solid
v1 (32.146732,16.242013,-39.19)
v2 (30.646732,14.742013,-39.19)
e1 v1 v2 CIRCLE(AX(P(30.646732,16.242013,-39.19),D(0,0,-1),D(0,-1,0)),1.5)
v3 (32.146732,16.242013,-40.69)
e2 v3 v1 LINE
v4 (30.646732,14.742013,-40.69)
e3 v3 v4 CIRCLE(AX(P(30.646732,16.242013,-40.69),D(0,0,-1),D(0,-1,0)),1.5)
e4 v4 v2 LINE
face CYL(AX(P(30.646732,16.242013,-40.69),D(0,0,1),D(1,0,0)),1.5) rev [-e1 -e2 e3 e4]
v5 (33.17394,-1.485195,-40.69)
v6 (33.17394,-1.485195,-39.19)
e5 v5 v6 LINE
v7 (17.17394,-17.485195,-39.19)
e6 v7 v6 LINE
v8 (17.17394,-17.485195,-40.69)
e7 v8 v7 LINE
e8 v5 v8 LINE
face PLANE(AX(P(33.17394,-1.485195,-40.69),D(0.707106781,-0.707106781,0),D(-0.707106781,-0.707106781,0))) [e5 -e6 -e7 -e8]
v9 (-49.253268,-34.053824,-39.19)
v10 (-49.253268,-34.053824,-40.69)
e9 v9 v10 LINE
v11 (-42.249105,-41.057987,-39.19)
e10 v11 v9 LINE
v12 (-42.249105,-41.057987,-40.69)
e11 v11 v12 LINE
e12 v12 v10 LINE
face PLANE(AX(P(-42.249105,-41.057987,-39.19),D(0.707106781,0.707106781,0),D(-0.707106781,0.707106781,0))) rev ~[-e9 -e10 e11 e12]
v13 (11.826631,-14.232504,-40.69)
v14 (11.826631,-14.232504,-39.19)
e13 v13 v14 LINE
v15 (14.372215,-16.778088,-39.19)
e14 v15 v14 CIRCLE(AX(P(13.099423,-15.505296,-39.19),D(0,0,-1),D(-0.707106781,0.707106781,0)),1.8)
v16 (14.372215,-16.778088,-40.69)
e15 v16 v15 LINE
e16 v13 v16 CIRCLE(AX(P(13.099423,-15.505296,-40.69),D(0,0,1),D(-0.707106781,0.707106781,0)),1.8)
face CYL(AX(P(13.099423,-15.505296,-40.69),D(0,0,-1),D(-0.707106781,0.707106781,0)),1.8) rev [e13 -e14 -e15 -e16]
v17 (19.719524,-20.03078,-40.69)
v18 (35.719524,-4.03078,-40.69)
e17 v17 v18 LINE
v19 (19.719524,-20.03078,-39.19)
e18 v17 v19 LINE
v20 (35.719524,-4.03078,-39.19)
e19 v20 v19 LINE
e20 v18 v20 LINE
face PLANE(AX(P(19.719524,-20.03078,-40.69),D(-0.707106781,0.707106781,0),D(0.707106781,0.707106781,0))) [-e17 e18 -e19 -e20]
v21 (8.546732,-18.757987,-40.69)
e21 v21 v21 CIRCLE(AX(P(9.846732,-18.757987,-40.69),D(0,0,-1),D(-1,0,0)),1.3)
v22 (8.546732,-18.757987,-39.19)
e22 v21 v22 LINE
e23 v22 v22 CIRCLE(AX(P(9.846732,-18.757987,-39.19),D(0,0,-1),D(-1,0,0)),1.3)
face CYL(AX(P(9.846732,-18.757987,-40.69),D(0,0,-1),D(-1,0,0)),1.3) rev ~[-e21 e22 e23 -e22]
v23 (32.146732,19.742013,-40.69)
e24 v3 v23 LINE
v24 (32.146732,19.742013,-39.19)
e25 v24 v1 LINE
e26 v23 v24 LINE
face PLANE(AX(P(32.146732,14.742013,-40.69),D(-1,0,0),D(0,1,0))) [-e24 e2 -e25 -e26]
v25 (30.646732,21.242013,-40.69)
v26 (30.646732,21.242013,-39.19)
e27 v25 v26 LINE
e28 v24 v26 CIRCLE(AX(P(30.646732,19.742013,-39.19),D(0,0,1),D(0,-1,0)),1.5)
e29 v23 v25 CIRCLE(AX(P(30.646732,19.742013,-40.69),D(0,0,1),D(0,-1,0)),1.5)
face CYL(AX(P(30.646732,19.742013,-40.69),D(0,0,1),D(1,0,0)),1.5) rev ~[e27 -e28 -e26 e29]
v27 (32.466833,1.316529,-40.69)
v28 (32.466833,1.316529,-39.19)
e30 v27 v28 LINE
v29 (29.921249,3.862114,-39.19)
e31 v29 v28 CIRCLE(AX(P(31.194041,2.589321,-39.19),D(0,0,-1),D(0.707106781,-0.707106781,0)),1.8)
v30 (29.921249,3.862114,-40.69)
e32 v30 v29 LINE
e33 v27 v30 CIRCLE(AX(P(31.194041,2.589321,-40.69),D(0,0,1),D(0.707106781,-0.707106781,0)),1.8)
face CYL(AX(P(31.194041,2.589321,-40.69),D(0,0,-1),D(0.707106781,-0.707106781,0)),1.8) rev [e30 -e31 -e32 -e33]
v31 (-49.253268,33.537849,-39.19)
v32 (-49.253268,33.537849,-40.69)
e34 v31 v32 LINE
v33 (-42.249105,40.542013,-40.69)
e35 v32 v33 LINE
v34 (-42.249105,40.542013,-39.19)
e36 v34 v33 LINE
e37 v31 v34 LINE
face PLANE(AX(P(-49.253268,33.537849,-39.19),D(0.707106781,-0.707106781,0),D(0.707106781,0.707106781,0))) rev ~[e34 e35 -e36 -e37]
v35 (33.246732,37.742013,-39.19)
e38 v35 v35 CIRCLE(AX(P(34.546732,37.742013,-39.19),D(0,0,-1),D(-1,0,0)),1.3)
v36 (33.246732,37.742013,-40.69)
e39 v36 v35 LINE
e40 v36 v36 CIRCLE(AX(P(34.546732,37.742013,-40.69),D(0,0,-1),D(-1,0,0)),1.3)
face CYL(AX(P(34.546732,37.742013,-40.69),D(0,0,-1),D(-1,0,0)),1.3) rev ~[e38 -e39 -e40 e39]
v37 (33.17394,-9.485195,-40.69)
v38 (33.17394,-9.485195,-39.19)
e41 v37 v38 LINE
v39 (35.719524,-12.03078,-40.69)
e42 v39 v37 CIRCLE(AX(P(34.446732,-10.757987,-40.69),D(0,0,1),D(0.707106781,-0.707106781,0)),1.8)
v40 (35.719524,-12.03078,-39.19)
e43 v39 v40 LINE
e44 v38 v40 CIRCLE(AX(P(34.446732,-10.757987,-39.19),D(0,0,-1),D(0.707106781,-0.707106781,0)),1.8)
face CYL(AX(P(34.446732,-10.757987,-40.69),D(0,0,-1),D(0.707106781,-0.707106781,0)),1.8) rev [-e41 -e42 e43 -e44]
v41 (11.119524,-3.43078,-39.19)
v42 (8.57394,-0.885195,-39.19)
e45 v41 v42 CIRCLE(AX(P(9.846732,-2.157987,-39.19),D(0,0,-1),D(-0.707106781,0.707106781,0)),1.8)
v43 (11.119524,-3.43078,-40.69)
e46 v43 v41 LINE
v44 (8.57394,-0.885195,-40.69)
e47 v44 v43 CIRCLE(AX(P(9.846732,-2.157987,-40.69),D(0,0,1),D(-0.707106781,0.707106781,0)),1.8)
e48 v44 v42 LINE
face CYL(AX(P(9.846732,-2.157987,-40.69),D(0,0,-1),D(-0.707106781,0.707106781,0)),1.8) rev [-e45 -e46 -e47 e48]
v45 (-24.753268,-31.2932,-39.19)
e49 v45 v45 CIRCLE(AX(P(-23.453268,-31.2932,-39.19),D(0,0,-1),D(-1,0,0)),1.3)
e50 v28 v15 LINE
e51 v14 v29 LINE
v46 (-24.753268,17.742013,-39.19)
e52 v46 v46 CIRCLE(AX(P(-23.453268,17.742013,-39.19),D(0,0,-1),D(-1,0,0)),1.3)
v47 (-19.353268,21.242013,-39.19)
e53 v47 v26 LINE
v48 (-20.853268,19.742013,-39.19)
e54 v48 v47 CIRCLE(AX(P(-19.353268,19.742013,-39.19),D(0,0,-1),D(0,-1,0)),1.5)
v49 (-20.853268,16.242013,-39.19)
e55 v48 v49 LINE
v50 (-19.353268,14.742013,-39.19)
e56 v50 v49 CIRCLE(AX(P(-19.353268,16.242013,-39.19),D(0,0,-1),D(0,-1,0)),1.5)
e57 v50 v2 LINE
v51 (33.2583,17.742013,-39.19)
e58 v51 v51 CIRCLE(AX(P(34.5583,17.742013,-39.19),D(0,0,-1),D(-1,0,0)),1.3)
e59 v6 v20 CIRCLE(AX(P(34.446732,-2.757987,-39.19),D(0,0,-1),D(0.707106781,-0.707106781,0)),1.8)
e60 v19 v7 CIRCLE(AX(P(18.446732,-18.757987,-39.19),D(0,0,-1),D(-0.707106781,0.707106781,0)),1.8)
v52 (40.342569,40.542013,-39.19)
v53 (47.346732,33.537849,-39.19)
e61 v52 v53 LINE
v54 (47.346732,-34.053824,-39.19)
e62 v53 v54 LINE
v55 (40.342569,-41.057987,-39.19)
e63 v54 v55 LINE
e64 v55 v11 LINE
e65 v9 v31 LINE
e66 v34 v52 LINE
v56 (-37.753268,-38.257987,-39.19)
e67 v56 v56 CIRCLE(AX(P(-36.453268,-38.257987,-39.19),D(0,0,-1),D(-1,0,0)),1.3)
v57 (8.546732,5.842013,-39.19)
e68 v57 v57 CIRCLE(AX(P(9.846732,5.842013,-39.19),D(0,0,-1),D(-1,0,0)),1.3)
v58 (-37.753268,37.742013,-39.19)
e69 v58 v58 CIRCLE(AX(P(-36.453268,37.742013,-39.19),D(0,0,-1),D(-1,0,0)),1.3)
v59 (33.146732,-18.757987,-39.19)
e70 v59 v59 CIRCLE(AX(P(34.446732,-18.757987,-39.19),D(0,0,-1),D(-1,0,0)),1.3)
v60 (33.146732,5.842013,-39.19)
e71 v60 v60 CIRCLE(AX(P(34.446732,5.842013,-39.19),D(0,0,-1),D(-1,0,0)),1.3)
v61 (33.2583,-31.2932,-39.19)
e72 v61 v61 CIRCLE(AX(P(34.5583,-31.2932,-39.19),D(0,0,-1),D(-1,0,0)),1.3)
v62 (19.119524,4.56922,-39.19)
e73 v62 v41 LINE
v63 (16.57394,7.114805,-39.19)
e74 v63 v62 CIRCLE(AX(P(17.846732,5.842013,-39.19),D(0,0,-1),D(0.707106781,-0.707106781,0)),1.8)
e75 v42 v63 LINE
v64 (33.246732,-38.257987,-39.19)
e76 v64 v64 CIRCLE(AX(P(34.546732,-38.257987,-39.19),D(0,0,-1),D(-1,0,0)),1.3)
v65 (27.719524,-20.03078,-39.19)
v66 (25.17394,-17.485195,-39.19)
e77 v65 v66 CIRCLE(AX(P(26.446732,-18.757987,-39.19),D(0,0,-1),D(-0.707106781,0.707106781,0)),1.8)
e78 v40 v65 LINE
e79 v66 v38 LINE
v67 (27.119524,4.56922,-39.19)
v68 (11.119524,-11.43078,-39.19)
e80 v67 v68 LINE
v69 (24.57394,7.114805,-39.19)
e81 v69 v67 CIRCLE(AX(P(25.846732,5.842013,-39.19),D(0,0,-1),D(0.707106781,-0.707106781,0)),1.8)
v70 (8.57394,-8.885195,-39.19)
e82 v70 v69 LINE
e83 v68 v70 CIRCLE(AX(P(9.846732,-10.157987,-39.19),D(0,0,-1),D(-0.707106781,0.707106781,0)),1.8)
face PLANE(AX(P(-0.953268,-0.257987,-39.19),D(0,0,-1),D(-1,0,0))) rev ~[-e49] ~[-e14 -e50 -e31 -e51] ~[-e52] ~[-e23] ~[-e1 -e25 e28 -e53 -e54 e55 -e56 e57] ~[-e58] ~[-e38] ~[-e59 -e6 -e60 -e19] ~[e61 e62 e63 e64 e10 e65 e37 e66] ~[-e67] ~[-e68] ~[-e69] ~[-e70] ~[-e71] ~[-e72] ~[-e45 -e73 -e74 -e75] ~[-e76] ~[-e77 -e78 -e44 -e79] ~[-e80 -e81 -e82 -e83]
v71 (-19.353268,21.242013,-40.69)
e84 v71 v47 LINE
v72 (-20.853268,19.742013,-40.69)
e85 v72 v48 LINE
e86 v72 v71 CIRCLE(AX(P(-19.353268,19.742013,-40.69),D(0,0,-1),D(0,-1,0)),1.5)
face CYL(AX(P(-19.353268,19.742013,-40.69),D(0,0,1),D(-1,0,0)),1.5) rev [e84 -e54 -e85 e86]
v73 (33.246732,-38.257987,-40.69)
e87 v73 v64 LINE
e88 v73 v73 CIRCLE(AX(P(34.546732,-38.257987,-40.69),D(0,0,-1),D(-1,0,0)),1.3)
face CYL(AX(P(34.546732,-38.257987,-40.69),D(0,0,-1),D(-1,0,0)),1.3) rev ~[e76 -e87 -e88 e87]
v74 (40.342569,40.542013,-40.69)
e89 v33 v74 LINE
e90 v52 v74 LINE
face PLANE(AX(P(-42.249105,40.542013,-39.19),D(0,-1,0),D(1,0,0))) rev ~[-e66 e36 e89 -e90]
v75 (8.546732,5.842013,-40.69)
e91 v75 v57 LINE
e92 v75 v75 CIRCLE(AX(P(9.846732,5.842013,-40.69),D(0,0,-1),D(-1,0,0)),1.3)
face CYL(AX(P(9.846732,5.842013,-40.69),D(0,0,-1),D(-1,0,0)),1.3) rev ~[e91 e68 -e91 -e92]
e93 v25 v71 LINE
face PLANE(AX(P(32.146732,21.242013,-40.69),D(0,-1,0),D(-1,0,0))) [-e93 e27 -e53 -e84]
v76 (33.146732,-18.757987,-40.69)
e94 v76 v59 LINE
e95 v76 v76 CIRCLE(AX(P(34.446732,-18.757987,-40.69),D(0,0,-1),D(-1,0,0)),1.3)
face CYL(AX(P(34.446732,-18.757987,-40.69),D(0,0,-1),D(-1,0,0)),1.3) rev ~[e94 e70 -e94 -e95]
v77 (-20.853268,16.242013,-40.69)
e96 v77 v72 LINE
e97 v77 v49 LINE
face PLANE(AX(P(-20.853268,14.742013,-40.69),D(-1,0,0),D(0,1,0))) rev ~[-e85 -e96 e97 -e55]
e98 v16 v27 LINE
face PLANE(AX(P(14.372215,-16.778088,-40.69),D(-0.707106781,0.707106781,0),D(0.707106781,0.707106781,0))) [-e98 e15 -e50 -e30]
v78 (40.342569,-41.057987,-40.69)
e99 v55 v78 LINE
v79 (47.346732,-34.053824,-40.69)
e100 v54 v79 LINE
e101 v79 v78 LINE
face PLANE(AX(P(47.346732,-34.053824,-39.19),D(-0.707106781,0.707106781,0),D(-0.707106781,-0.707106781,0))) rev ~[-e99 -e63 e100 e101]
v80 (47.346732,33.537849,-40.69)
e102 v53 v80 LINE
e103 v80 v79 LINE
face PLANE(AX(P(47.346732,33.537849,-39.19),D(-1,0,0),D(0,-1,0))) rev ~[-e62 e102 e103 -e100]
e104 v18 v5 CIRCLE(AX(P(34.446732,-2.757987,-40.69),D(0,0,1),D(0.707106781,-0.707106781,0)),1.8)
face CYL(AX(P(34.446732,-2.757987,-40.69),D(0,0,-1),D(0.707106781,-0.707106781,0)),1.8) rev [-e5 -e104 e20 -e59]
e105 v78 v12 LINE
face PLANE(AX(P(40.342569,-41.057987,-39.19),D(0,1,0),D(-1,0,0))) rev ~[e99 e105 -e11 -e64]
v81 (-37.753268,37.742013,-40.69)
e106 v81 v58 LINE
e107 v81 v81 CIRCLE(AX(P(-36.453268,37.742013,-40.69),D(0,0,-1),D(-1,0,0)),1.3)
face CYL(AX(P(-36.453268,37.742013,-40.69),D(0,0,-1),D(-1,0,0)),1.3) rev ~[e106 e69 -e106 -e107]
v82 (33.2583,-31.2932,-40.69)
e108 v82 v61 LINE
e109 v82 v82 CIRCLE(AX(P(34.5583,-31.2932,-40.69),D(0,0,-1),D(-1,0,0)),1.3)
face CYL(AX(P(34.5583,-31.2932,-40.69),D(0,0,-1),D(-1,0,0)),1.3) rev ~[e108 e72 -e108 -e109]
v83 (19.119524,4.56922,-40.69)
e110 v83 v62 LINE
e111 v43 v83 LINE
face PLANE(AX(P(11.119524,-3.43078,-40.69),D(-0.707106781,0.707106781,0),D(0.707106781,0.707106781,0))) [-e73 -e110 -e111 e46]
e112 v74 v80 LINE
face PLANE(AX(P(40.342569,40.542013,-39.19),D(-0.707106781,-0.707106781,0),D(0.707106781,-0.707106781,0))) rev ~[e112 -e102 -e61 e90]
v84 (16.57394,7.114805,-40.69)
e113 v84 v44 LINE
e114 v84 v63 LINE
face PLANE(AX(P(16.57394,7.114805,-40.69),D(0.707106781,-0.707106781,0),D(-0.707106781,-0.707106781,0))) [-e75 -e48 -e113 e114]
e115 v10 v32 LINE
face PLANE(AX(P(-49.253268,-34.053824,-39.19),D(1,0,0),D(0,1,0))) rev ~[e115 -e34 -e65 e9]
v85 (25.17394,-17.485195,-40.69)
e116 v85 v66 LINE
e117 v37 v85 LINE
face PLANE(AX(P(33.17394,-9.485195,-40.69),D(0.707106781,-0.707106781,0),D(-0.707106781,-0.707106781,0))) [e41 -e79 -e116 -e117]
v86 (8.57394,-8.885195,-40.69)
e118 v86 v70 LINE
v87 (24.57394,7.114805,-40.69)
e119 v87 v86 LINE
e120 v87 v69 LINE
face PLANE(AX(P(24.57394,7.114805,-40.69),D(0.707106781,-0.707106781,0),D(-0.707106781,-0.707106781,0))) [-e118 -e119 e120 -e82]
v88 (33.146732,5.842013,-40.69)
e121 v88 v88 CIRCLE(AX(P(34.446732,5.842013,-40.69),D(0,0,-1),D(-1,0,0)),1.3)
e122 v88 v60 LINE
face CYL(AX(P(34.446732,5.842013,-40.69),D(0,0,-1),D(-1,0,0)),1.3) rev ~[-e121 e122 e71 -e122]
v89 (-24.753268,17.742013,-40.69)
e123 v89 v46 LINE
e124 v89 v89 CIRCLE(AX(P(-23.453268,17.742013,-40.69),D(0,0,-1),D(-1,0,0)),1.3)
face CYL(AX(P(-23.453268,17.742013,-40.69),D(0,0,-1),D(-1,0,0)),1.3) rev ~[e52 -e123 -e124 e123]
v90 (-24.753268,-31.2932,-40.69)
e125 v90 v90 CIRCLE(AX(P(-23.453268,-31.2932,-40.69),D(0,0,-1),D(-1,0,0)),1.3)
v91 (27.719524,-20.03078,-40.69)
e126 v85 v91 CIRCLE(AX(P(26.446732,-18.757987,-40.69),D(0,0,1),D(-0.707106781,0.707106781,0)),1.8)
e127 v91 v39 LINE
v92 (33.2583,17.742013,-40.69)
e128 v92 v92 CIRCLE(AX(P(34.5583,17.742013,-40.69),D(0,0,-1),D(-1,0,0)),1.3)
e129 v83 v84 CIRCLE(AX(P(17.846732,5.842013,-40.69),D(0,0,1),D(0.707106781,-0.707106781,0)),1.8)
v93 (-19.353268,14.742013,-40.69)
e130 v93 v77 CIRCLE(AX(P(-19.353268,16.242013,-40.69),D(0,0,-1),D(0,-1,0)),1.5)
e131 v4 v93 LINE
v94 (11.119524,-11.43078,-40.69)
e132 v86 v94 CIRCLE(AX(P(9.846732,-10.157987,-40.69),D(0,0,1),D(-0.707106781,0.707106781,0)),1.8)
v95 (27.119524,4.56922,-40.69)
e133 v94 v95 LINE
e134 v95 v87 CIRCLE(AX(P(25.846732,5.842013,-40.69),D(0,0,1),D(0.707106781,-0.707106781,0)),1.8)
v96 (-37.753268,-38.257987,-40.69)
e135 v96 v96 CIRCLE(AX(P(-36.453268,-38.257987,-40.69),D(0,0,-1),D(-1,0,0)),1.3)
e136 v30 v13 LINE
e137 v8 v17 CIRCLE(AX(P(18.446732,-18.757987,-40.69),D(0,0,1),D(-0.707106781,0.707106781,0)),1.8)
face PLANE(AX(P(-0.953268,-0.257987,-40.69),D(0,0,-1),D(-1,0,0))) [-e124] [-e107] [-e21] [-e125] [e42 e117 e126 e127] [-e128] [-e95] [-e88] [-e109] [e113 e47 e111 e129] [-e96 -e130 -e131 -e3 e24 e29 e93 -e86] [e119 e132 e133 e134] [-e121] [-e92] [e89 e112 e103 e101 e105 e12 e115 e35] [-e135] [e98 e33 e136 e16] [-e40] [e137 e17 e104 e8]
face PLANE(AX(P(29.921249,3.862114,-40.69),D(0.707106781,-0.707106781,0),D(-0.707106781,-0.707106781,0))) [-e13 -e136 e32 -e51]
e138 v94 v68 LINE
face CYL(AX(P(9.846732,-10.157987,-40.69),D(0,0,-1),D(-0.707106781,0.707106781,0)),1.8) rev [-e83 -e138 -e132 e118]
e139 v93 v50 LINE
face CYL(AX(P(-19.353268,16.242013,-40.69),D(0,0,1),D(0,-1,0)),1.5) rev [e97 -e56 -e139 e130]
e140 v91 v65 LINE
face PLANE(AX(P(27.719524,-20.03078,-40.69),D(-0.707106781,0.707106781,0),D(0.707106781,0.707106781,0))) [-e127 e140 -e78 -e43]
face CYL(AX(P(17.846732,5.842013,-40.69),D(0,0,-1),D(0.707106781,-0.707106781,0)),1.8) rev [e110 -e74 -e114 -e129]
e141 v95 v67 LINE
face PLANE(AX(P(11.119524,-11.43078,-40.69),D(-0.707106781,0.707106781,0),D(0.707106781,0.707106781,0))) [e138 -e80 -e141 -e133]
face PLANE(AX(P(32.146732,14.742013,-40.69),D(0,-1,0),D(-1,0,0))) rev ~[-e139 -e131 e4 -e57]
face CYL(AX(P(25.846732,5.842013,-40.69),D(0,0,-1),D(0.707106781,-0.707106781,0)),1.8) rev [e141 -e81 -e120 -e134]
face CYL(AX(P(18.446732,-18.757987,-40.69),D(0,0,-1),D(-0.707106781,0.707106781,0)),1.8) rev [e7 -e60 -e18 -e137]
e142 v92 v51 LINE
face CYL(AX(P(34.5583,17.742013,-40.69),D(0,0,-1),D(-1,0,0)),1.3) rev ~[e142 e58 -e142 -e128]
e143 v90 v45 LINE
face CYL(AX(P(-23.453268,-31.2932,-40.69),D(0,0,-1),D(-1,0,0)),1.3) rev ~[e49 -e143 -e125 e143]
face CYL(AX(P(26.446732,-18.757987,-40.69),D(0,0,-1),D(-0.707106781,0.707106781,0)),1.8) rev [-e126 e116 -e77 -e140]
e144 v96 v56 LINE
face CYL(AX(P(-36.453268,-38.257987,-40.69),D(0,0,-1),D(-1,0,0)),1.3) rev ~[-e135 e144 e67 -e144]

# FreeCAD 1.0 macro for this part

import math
import FreeCAD as App
import Part
import Sketcher

V = App.Vector
Q = App.Units.Quantity


def edges_at(feature, points):
    """Names of the edges that pass closest to the given points."""
    edges = feature.Shape.Edges
    near = lambda p: min(range(len(edges)), key=lambda i: edges[i].distToShape(Part.Vertex(*p))[0])
    return sorted({f"Edge{near(p) + 1}" for p in points})

doc = App.newDocument("Part")
body = doc.addObject("PartDesign::Body", "Body")

sketch1 = doc.addObject("Sketcher::SketchObject", "Sketch")
body.addObject(sketch1)
sketch1.AttachmentSupport = (doc.XY_Plane, [""])
sketch1.MapMode = "FlatFace"
sketch1.AttachmentOffset = App.Placement(V(0, 0, -39.19), App.Rotation())
sketch1.addGeometry([
    Part.LineSegment(V(47.346732, -34.053824, 0), V(40.342569, -41.057987, 0)),
    Part.LineSegment(V(40.342569, -41.057987, 0), V(-42.249105, -41.057987, 0)),
    Part.LineSegment(V(-42.249105, -41.057987, 0), V(-49.253268, -34.053824, 0)),
    Part.LineSegment(V(-49.253268, -34.053824, 0), V(-49.253268, 33.537849, 0)),
    Part.LineSegment(V(-49.253268, 33.537849, 0), V(-42.249105, 40.542013, 0)),
    Part.LineSegment(V(-42.249105, 40.542013, 0), V(40.342569, 40.542013, 0)),
    Part.LineSegment(V(40.342569, 40.542013, 0), V(47.346732, 33.537849, 0)),
    Part.LineSegment(V(47.346732, 33.537849, 0), V(47.346732, -34.053824, 0)),
], False)
sketch1.addConstraint([
    Sketcher.Constraint("Coincident", 0, 2, 1, 1),
    Sketcher.Constraint("Coincident", 1, 2, 2, 1),
    Sketcher.Constraint("Coincident", 2, 2, 3, 1),
    Sketcher.Constraint("Coincident", 3, 2, 4, 1),
    Sketcher.Constraint("Coincident", 4, 2, 5, 1),
    Sketcher.Constraint("Coincident", 5, 2, 6, 1),
    Sketcher.Constraint("Coincident", 6, 2, 7, 1),
    Sketcher.Constraint("Coincident", 7, 2, 0, 1),
    Sketcher.Constraint("Horizontal", 1),
    Sketcher.Constraint("Vertical", 3),
    Sketcher.Constraint("Horizontal", 5),
    Sketcher.Constraint("Vertical", 7),
    Sketcher.Constraint("Perpendicular", 0, 2),
    Sketcher.Constraint("Perpendicular", 2, 4),
    Sketcher.Constraint("Perpendicular", 4, 6),
    Sketcher.Constraint("Horizontal", 3, 2, 6, 2),
    Sketcher.Constraint("Horizontal", 2, 2, 7, 2),
    Sketcher.Constraint("Vertical", 1, 2, 4, 2),
    Sketcher.Constraint("Vertical", 0, 2, 5, 2),
    Sketcher.Constraint("DistanceY", 1, 2, 4, 2, 81.6),
    Sketcher.Constraint("DistanceX", 3, 2, 6, 2, 96.6),
    Sketcher.Constraint("DistanceX", 1, 2, 1, 1, 82.591674),
    Sketcher.Constraint("DistanceX", -1, 1, 0, 2, 40.342569),
    Sketcher.Constraint("DistanceY", -1, 1, 3, 2, 33.537849),
])
pad1 = doc.addObject("PartDesign::Pad", "Pad")
body.addObject(pad1)
pad1.Profile = sketch1
pad1.Length = 1.5
pad1.Reversed = True

sketch2 = doc.addObject("Sketcher::SketchObject", "Sketch001")
body.addObject(sketch2)
sketch2.AttachmentSupport = (doc.XY_Plane, [""])
sketch2.MapMode = "FlatFace"
sketch2.AttachmentOffset = App.Placement(V(0, 0, -40.69), App.Rotation())
sketch2.addGeometry([
    Part.Circle(V(34.546732, -38.257987, 0), V(0, 0, 1), 1.3),
    Part.Circle(V(-36.453268, -38.257987, 0), V(0, 0, 1), 1.3),
    Part.Circle(V(34.546732, 37.742013, 0), V(0, 0, 1), 1.3),
    Part.Circle(V(-36.453268, 37.742013, 0), V(0, 0, 1), 1.3),
], False)
sketch2.addConstraint([
    Sketcher.Constraint("Equal", 0, 1),
    Sketcher.Constraint("Equal", 1, 2),
    Sketcher.Constraint("Equal", 2, 3),
    Sketcher.Constraint("Horizontal", 0, 3, 1, 3),
    Sketcher.Constraint("Horizontal", 2, 3, 3, 3),
    Sketcher.Constraint("Vertical", 0, 3, 2, 3),
    Sketcher.Constraint("Vertical", 1, 3, 3, 3),
    Sketcher.Constraint("Diameter", 0, 2.6),
    Sketcher.Constraint("DistanceX", 1, 3, 0, 3, 71.0),
    Sketcher.Constraint("DistanceY", 0, 3, 2, 3, 76.0),
    Sketcher.Constraint("DistanceX", -1, 1, 0, 3, 34.546732),
    Sketcher.Constraint("DistanceY", 0, 3, -1, 1, 38.257987),
])
pocket1 = doc.addObject("PartDesign::Pocket", "Pocket")
body.addObject(pocket1)
pocket1.Profile = sketch2
pocket1.Type = "ThroughAll"
pocket1.Reversed = True

sketch3 = doc.addObject("Sketcher::SketchObject", "Sketch002")
body.addObject(sketch3)
sketch3.AttachmentSupport = (doc.XY_Plane, [""])
sketch3.MapMode = "FlatFace"
sketch3.AttachmentOffset = App.Placement(V(0, 0, -40.69), App.Rotation())
sketch3.addGeometry(Part.Circle(V(-23.453268, -31.2932, 0), V(0, 0, 1), 1.3), False)
sketch3.addConstraint([
    Sketcher.Constraint("Diameter", 0, 2.6),
    Sketcher.Constraint("DistanceY", 0, 3, -1, 1, 31.2932),
    Sketcher.Constraint("DistanceX", 0, 3, -1, 1, 23.453268),
])
pocket2 = doc.addObject("PartDesign::Pocket", "Pocket001")
body.addObject(pocket2)
pocket2.Profile = sketch3
pocket2.Type = "UpToFirst"
pocket2.Reversed = True

sketch4 = doc.addObject("Sketcher::SketchObject", "Sketch003")
body.addObject(sketch4)
sketch4.AttachmentSupport = (doc.XY_Plane, [""])
sketch4.MapMode = "FlatFace"
sketch4.AttachmentOffset = App.Placement(V(0, 0, -40.69), App.Rotation())
sketch4.addGeometry(Part.Circle(V(34.5583, -31.2932, 0), V(0, 0, 1), 1.3), False)
sketch4.addConstraint([
    Sketcher.Constraint("Diameter", 0, 2.6),
    Sketcher.Constraint("DistanceX", -1, 1, 0, 3, 34.5583),
    Sketcher.Constraint("DistanceY", 0, 3, -1, 1, 31.2932),
])
pocket3 = doc.addObject("PartDesign::Pocket", "Pocket002")
body.addObject(pocket3)
pocket3.Profile = sketch4
pocket3.Type = "UpToFirst"
pocket3.Reversed = True

sketch5 = doc.addObject("Sketcher::SketchObject", "Sketch004")
body.addObject(sketch5)
sketch5.AttachmentSupport = (doc.XY_Plane, [""])
sketch5.MapMode = "FlatFace"
sketch5.AttachmentOffset = App.Placement(V(0, 0, -40.69), App.Rotation())
sketch5.addGeometry(Part.Circle(V(-23.453268, 17.742013, 0), V(0, 0, 1), 1.3), False)
sketch5.addConstraint([
    Sketcher.Constraint("Diameter", 0, 2.6),
    Sketcher.Constraint("DistanceX", 0, 3, -1, 1, 23.453268),
    Sketcher.Constraint("DistanceY", -1, 1, 0, 3, 17.742013),
])
pocket4 = doc.addObject("PartDesign::Pocket", "Pocket003")
body.addObject(pocket4)
pocket4.Profile = sketch5
pocket4.Type = "UpToFirst"
pocket4.Reversed = True

sketch6 = doc.addObject("Sketcher::SketchObject", "Sketch005")
body.addObject(sketch6)
sketch6.AttachmentSupport = (doc.XY_Plane, [""])
sketch6.MapMode = "FlatFace"
sketch6.AttachmentOffset = App.Placement(V(0, 0, -40.69), App.Rotation())
sketch6.addGeometry(Part.Circle(V(34.5583, 17.742013, 0), V(0, 0, 1), 1.3), False)
sketch6.addConstraint([
    Sketcher.Constraint("Diameter", 0, 2.6),
    Sketcher.Constraint("DistanceX", -1, 1, 0, 3, 34.5583),
    Sketcher.Constraint("DistanceY", -1, 1, 0, 3, 17.742013),
])
pocket5 = doc.addObject("PartDesign::Pocket", "Pocket004")
body.addObject(pocket5)
pocket5.Profile = sketch6
pocket5.Type = "UpToFirst"
pocket5.Reversed = True

sketch7 = doc.addObject("Sketcher::SketchObject", "Sketch006")
body.addObject(sketch7)
sketch7.AttachmentSupport = (doc.XY_Plane, [""])
sketch7.MapMode = "FlatFace"
sketch7.AttachmentOffset = App.Placement(V(0, 0, -40.69), App.Rotation())
sketch7.addGeometry([
    Part.LineSegment(V(32.146732, 21.242013, 0), V(32.146732, 14.742013, 0)),
    Part.LineSegment(V(32.146732, 14.742013, 0), V(-20.853268, 14.742013, 0)),
    Part.LineSegment(V(-20.853268, 14.742013, 0), V(-20.853268, 21.242013, 0)),
    Part.LineSegment(V(-20.853268, 21.242013, 0), V(32.146732, 21.242013, 0)),
], False)
sketch7.addConstraint([
    Sketcher.Constraint("Coincident", 0, 2, 1, 1),
    Sketcher.Constraint("Coincident", 1, 2, 2, 1),
    Sketcher.Constraint("Coincident", 2, 2, 3, 1),
    Sketcher.Constraint("Coincident", 3, 2, 0, 1),
    Sketcher.Constraint("Vertical", 0),
    Sketcher.Constraint("Horizontal", 1),
    Sketcher.Constraint("Vertical", 2),
    Sketcher.Constraint("Horizontal", 3),
    Sketcher.Constraint("DistanceX", 1, 2, 1, 1, 53.0),
    Sketcher.Constraint("DistanceY", 0, 2, 0, 1, 6.5),
    Sketcher.Constraint("DistanceX", -1, 1, 0, 2, 32.146732),
    Sketcher.Constraint("DistanceY", -1, 1, 0, 2, 14.742013),
])
pocket6 = doc.addObject("PartDesign::Pocket", "Pocket005")
body.addObject(pocket6)
pocket6.Profile = sketch7
pocket6.Type = "UpToFirst"
pocket6.Reversed = True
doc.recompute()

fillet = doc.addObject("PartDesign::Fillet", "Fillet")
body.addObject(fillet)
fillet.Base = (pocket6, edges_at(pocket6, [
    (32.147, 14.742, -39.94),
    (32.147, 21.242, -39.94),
    (-20.853, 21.242, -39.94),
    (-20.853, 14.742, -39.94),
]))
fillet.Radius = 1.5

sketch8 = doc.addObject("Sketcher::SketchObject", "Sketch007")
body.addObject(sketch8)
sketch8.AttachmentSupport = (doc.XY_Plane, [""])
sketch8.MapMode = "FlatFace"
sketch8.AttachmentOffset = App.Placement(V(0, 0, -40.69), App.Rotation())
sketch8.addGeometry(Part.Circle(V(34.446732, 5.842013, 0), V(0, 0, 1), 1.3), False)
sketch8.addConstraint([
    Sketcher.Constraint("Diameter", 0, 2.6),
    Sketcher.Constraint("DistanceX", -1, 1, 0, 3, 34.446732),
    Sketcher.Constraint("DistanceY", -1, 1, 0, 3, 5.842013),
])
pocket7 = doc.addObject("PartDesign::Pocket", "Pocket006")
body.addObject(pocket7)
pocket7.Profile = sketch8
pocket7.Type = "UpToFirst"
pocket7.Reversed = True

sketch9 = doc.addObject("Sketcher::SketchObject", "Sketch008")
body.addObject(sketch9)
sketch9.AttachmentSupport = (doc.XY_Plane, [""])
sketch9.MapMode = "FlatFace"
sketch9.AttachmentOffset = App.Placement(V(0, 0, -40.69), App.Rotation())
sketch9.addGeometry(Part.Circle(V(34.446732, -18.757987, 0), V(0, 0, 1), 1.3), False)
sketch9.addConstraint([
    Sketcher.Constraint("Diameter", 0, 2.6),
    Sketcher.Constraint("DistanceX", -1, 1, 0, 3, 34.446732),
    Sketcher.Constraint("DistanceY", 0, 3, -1, 1, 18.757987),
])
pocket8 = doc.addObject("PartDesign::Pocket", "Pocket007")
body.addObject(pocket8)
pocket8.Profile = sketch9
pocket8.Type = "UpToFirst"
pocket8.Reversed = True

sketch10 = doc.addObject("Sketcher::SketchObject", "Sketch009")
body.addObject(sketch10)
sketch10.AttachmentSupport = (doc.XY_Plane, [""])
sketch10.MapMode = "FlatFace"
sketch10.AttachmentOffset = App.Placement(V(0, 0, -40.69), App.Rotation())
sketch10.addGeometry(Part.Circle(V(9.846732, 5.842013, 0), V(0, 0, 1), 1.3), False)
sketch10.addConstraint([
    Sketcher.Constraint("Diameter", 0, 2.6),
    Sketcher.Constraint("DistanceX", -1, 1, 0, 3, 9.846732),
    Sketcher.Constraint("DistanceY", -1, 1, 0, 3, 5.842013),
])
pocket9 = doc.addObject("PartDesign::Pocket", "Pocket008")
body.addObject(pocket9)
pocket9.Profile = sketch10
pocket9.Type = "UpToFirst"
pocket9.Reversed = True

sketch11 = doc.addObject("Sketcher::SketchObject", "Sketch010")
body.addObject(sketch11)
sketch11.AttachmentSupport = (doc.XY_Plane, [""])
sketch11.MapMode = "FlatFace"
sketch11.AttachmentOffset = App.Placement(V(0, 0, -40.69), App.Rotation())
sketch11.addGeometry(Part.Circle(V(9.846732, -18.757987, 0), V(0, 0, 1), 1.3), False)
sketch11.addConstraint([
    Sketcher.Constraint("Diameter", 0, 2.6),
    Sketcher.Constraint("DistanceX", -1, 1, 0, 3, 9.846732),
    Sketcher.Constraint("DistanceY", 0, 3, -1, 1, 18.757987),
])
pocket10 = doc.addObject("PartDesign::Pocket", "Pocket009")
body.addObject(pocket10)
pocket10.Profile = sketch11
pocket10.Type = "UpToFirst"
pocket10.Reversed = True

sketch12 = doc.addObject("Sketcher::SketchObject", "Sketch011")
body.addObject(sketch12)
sketch12.AttachmentSupport = (doc.XY_Plane, [""])
sketch12.MapMode = "FlatFace"
sketch12.AttachmentOffset = App.Placement(V(0, 0, -40.69), App.Rotation())
sketch12.addGeometry([
    Part.LineSegment(V(11.826631, -14.232504, 0), V(29.921249, 3.862114, 0)),
    Part.ArcOfCircle(Part.Circle(V(31.194041, 2.589321, 0), V(0, 0, 1), 1.8), math.radians(-45), math.radians(135)),
    Part.LineSegment(V(32.466833, 1.316529, 0), V(14.372215, -16.778088, 0)),
    Part.ArcOfCircle(Part.Circle(V(13.099423, -15.505296, 0), V(0, 0, 1), 1.8), math.radians(135), math.radians(315)),
], False)
sketch12.addConstraint([
    Sketcher.Constraint("Tangent", 0, 2, 1, 2),
    Sketcher.Constraint("Tangent", 1, 1, 2, 1),
    Sketcher.Constraint("Tangent", 2, 2, 3, 2),
    Sketcher.Constraint("Tangent", 3, 1, 0, 1),
    Sketcher.Constraint("Equal", 1, 3),
    Sketcher.Constraint("Radius", 1, 1.8),
    Sketcher.Constraint("Angle", 0, Q("45 deg")),
    Sketcher.Constraint("DistanceX", -1, 1, 1, 3, 31.194041),
    Sketcher.Constraint("DistanceY", -1, 1, 1, 3, 2.589321),
    Sketcher.Constraint("DistanceY", 2, 2, -1, 1, 16.778088),
])
pocket11 = doc.addObject("PartDesign::Pocket", "Pocket010")
body.addObject(pocket11)
pocket11.Profile = sketch12
pocket11.Type = "UpToFirst"
pocket11.Reversed = True

sketch13 = doc.addObject("Sketcher::SketchObject", "Sketch012")
body.addObject(sketch13)
sketch13.AttachmentSupport = (doc.XY_Plane, [""])
sketch13.MapMode = "FlatFace"
sketch13.AttachmentOffset = App.Placement(V(0, 0, -40.69), App.Rotation())
sketch13.addGeometry([
    Part.LineSegment(V(17.17394, -17.485195, 0), V(33.17394, -1.485195, 0)),
    Part.ArcOfCircle(Part.Circle(V(34.446732, -2.757987, 0), V(0, 0, 1), 1.8), math.radians(-45), math.radians(135)),
    Part.LineSegment(V(35.719524, -4.03078, 0), V(19.719524, -20.03078, 0)),
    Part.ArcOfCircle(Part.Circle(V(18.446732, -18.757987, 0), V(0, 0, 1), 1.8), math.radians(135), math.radians(315)),
], False)
sketch13.addConstraint([
    Sketcher.Constraint("Tangent", 0, 2, 1, 2),
    Sketcher.Constraint("Tangent", 1, 1, 2, 1),
    Sketcher.Constraint("Tangent", 2, 2, 3, 2),
    Sketcher.Constraint("Tangent", 3, 1, 0, 1),
    Sketcher.Constraint("Equal", 1, 3),
    Sketcher.Constraint("Radius", 1, 1.8),
    Sketcher.Constraint("Angle", 0, Q("45 deg")),
    Sketcher.Constraint("DistanceX", 3, 3, 1, 3, 16.0),
    Sketcher.Constraint("DistanceX", -1, 1, 0, 2, 33.17394),
    Sketcher.Constraint("DistanceY", 1, 1, -1, 1, 4.03078),
])
pocket12 = doc.addObject("PartDesign::Pocket", "Pocket011")
body.addObject(pocket12)
pocket12.Profile = sketch13
pocket12.Type = "UpToFirst"
pocket12.Reversed = True

sketch14 = doc.addObject("Sketcher::SketchObject", "Sketch013")
body.addObject(sketch14)
sketch14.AttachmentSupport = (doc.XY_Plane, [""])
sketch14.MapMode = "FlatFace"
sketch14.AttachmentOffset = App.Placement(V(0, 0, -40.69), App.Rotation())
sketch14.addGeometry([
    Part.LineSegment(V(8.57394, -8.885195, 0), V(24.57394, 7.114805, 0)),
    Part.ArcOfCircle(Part.Circle(V(25.846732, 5.842013, 0), V(0, 0, 1), 1.8), math.radians(-45), math.radians(135)),
    Part.LineSegment(V(27.119524, 4.56922, 0), V(11.119524, -11.43078, 0)),
    Part.ArcOfCircle(Part.Circle(V(9.846732, -10.157987, 0), V(0, 0, 1), 1.8), math.radians(135), math.radians(315)),
], False)
sketch14.addConstraint([
    Sketcher.Constraint("Tangent", 0, 2, 1, 2),
    Sketcher.Constraint("Tangent", 1, 1, 2, 1),
    Sketcher.Constraint("Tangent", 2, 2, 3, 2),
    Sketcher.Constraint("Tangent", 3, 1, 0, 1),
    Sketcher.Constraint("Equal", 1, 3),
    Sketcher.Constraint("Radius", 1, 1.8),
    Sketcher.Constraint("Angle", 0, Q("45 deg")),
    Sketcher.Constraint("DistanceX", 3, 3, 1, 3, 16.0),
    Sketcher.Constraint("DistanceX", -1, 1, 0, 2, 24.57394),
    Sketcher.Constraint("DistanceY", -1, 1, 1, 1, 4.56922),
])
pocket13 = doc.addObject("PartDesign::Pocket", "Pocket012")
body.addObject(pocket13)
pocket13.Profile = sketch14
pocket13.Type = "UpToFirst"
pocket13.Reversed = True

sketch15 = doc.addObject("Sketcher::SketchObject", "Sketch014")
body.addObject(sketch15)
sketch15.AttachmentSupport = (doc.XY_Plane, [""])
sketch15.MapMode = "FlatFace"
sketch15.AttachmentOffset = App.Placement(V(0, 0, -40.69), App.Rotation())
sketch15.addGeometry([
    Part.LineSegment(V(8.57394, -0.885195, 0), V(16.57394, 7.114805, 0)),
    Part.ArcOfCircle(Part.Circle(V(17.846732, 5.842013, 0), V(0, 0, 1), 1.8), math.radians(-45), math.radians(135)),
    Part.LineSegment(V(19.119524, 4.56922, 0), V(11.119524, -3.43078, 0)),
    Part.ArcOfCircle(Part.Circle(V(9.846732, -2.157987, 0), V(0, 0, 1), 1.8), math.radians(135), math.radians(315)),
], False)
sketch15.addConstraint([
    Sketcher.Constraint("Tangent", 0, 2, 1, 2),
    Sketcher.Constraint("Tangent", 1, 1, 2, 1),
    Sketcher.Constraint("Tangent", 2, 2, 3, 2),
    Sketcher.Constraint("Tangent", 3, 1, 0, 1),
    Sketcher.Constraint("Equal", 1, 3),
    Sketcher.Constraint("Radius", 1, 1.8),
    Sketcher.Constraint("Angle", 0, Q("45 deg")),
    Sketcher.Constraint("DistanceX", 3, 3, 1, 3, 8.0),
    Sketcher.Constraint("DistanceX", -1, 1, 0, 2, 16.57394),
    Sketcher.Constraint("DistanceY", -1, 1, 1, 1, 4.56922),
])
pocket14 = doc.addObject("PartDesign::Pocket", "Pocket013")
body.addObject(pocket14)
pocket14.Profile = sketch15
pocket14.Type = "UpToFirst"
pocket14.Reversed = True

sketch16 = doc.addObject("Sketcher::SketchObject", "Sketch015")
body.addObject(sketch16)
sketch16.AttachmentSupport = (doc.XY_Plane, [""])
sketch16.MapMode = "FlatFace"
sketch16.AttachmentOffset = App.Placement(V(0, 0, -40.69), App.Rotation())
sketch16.addGeometry([
    Part.LineSegment(V(25.17394, -17.485195, 0), V(33.17394, -9.485195, 0)),
    Part.ArcOfCircle(Part.Circle(V(34.446732, -10.757987, 0), V(0, 0, 1), 1.8), math.radians(-45), math.radians(135)),
    Part.LineSegment(V(35.719524, -12.03078, 0), V(27.719524, -20.03078, 0)),
    Part.ArcOfCircle(Part.Circle(V(26.446732, -18.757987, 0), V(0, 0, 1), 1.8), math.radians(135), math.radians(315)),
], False)
sketch16.addConstraint([
    Sketcher.Constraint("Tangent", 0, 2, 1, 2),
    Sketcher.Constraint("Tangent", 1, 1, 2, 1),
    Sketcher.Constraint("Tangent", 2, 2, 3, 2),
    Sketcher.Constraint("Tangent", 3, 1, 0, 1),
    Sketcher.Constraint("Equal", 1, 3),
    Sketcher.Constraint("Radius", 1, 1.8),
    Sketcher.Constraint("Angle", 0, Q("45 deg")),
    Sketcher.Constraint("DistanceX", 3, 3, 1, 3, 8.0),
    Sketcher.Constraint("DistanceX", -1, 1, 0, 2, 33.17394),
    Sketcher.Constraint("DistanceY", 1, 1, -1, 1, 12.03078),
])
pocket15 = doc.addObject("PartDesign::Pocket", "Pocket014")
body.addObject(pocket15)
pocket15.Profile = sketch16
pocket15.Type = "UpToFirst"
pocket15.Reversed = True

doc.recompute()
